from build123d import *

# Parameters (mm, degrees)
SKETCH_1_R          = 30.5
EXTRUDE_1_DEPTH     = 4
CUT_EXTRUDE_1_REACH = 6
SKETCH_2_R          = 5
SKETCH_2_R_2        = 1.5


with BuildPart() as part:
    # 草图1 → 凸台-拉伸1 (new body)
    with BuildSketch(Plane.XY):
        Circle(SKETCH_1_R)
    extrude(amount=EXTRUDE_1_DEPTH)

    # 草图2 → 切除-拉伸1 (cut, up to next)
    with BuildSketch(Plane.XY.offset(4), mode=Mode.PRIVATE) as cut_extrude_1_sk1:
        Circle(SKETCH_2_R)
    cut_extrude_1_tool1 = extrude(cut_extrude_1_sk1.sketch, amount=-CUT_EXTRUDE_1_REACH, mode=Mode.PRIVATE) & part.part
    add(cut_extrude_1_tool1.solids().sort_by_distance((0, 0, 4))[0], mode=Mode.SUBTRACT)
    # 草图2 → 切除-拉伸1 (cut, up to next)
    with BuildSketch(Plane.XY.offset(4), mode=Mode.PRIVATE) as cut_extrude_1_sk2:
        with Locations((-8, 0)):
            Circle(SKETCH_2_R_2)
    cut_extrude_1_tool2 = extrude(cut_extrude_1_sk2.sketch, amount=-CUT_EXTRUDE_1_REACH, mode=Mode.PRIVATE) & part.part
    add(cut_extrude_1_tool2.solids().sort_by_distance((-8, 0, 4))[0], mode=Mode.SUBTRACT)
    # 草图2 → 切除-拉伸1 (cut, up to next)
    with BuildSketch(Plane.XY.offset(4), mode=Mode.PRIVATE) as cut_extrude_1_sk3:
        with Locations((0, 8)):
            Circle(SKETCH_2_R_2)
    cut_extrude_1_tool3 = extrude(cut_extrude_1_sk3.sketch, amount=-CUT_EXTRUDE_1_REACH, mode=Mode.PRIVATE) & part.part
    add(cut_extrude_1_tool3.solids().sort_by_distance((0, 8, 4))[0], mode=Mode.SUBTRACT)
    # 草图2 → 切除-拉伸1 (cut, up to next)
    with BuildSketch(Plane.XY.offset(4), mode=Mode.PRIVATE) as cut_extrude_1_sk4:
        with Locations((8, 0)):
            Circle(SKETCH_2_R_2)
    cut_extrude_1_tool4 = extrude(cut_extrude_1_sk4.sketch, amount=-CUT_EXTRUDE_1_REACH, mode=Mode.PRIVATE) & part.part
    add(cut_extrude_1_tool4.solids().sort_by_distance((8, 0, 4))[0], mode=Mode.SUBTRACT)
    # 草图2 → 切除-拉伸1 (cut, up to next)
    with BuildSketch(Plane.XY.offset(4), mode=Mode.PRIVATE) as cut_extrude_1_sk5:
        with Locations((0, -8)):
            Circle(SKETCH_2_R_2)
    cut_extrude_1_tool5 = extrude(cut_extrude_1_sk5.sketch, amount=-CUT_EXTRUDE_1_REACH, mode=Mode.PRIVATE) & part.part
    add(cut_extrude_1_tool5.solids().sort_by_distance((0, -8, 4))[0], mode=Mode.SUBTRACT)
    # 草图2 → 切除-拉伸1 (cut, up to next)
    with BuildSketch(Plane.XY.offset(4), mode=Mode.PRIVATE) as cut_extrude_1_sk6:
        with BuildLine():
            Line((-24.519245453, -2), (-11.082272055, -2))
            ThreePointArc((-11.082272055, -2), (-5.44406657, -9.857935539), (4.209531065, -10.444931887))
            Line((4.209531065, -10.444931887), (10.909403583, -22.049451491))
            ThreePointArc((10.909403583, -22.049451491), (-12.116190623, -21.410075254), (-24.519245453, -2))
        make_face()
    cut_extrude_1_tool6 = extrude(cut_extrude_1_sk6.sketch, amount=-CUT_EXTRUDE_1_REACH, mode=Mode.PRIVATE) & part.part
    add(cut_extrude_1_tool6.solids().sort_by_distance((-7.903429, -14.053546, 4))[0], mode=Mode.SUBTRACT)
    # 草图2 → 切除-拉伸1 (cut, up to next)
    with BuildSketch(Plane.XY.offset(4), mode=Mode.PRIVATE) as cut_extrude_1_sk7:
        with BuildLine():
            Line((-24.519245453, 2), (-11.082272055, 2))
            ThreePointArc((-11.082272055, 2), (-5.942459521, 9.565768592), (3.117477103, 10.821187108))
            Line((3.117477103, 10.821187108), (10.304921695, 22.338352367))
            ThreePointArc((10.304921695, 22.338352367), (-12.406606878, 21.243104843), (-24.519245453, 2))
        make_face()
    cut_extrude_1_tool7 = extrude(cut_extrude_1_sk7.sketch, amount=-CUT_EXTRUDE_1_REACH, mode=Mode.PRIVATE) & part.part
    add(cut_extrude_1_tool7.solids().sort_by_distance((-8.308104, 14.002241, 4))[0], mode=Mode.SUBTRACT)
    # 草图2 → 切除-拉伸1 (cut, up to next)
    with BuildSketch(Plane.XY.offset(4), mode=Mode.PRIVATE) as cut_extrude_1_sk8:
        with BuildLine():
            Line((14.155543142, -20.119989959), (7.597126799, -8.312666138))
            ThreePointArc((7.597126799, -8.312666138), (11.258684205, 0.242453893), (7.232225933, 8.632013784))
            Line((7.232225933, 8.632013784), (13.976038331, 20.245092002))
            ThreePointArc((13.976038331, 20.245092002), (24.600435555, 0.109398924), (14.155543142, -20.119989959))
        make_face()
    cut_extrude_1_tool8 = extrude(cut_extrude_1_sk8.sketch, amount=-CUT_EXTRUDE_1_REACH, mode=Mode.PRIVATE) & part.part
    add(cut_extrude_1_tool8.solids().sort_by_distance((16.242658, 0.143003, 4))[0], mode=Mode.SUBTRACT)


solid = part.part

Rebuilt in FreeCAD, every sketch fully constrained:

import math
import FreeCAD as App
import Part
import Sketcher
from FreeCAD import Vector
Q = App.Units.Quantity

doc = App.newDocument("Part")
params = doc.addObject("Spreadsheet::Sheet", "Params")
for row, (alias, value) in enumerate([
    ("sketch1_diameter", "61 mm"),
    ("pad1_length", "4 mm"),
    ("sketch2_diameter", "10 mm"),
    ("sketch3_diameter", "3 mm"),
    ("sketch4_diameter", "3 mm"),
    ("sketch5_diameter", "3 mm"),
    ("sketch6_diameter", "3 mm"),
], start=1):
    params.set(f"A{row}", alias)
    params.set(f"B{row}", "=" + value)
    params.setAlias(f"B{row}", alias)

body = doc.addObject("PartDesign::Body", "Body")

# Sketch on XY plane
sketch1 = doc.addObject("Sketcher::SketchObject", "Sketch")
body.addObject(sketch1)
sketch1.AttachmentSupport = (doc.XY_Plane, [""])
sketch1.MapMode = "FlatFace"
sketch1.addGeometry(Part.Circle(Vector(0, 0, 0), Vector(0, 0, 1), 30.5), False)
sketch1.addConstraint([
    Sketcher.Constraint("Coincident", 0, 3, -1, 1),
    Sketcher.Constraint("Diameter", 0, Q("61 mm")),
])
sketch1.setExpression("Constraints[1]", "Params.sketch1_diameter")
pad1 = doc.addObject("PartDesign::Pad", "Pad")
body.addObject(pad1)
pad1.Profile = sketch1
pad1.setExpression("Length", "Params.pad1_length")

# Sketch on XY plane
sketch2 = doc.addObject("Sketcher::SketchObject", "Sketch001")
body.addObject(sketch2)
sketch2.AttachmentSupport = (doc.XY_Plane, [""])
sketch2.MapMode = "FlatFace"
sketch2.AttachmentOffset = App.Placement(Vector(0, 0, 4), App.Rotation())
sketch2.addGeometry(Part.Circle(Vector(0, 0, 0), Vector(0, 0, 1), 5), False)
sketch2.addConstraint([
    Sketcher.Constraint("Coincident", 0, 3, -1, 1),
    Sketcher.Constraint("Diameter", 0, Q("10 mm")),
])
sketch2.setExpression("Constraints[1]", "Params.sketch2_diameter")
pocket1 = doc.addObject("PartDesign::Pocket", "Pocket")
body.addObject(pocket1)
pocket1.Profile = sketch2
pocket1.Type = "UpToFirst"

# Sketch on XY plane
sketch3 = doc.addObject("Sketcher::SketchObject", "Sketch002")
body.addObject(sketch3)
sketch3.AttachmentSupport = (doc.XY_Plane, [""])
sketch3.MapMode = "FlatFace"
sketch3.AttachmentOffset = App.Placement(Vector(0, 0, 4), App.Rotation())
sketch3.addGeometry(Part.Circle(Vector(-8, 0, 0), Vector(0, 0, 1), 1.5), False)
sketch3.addConstraint([
    Sketcher.Constraint("PointOnObject", 0, 3, -1),
    Sketcher.Constraint("Diameter", 0, Q("3 mm")),
    Sketcher.Constraint("DistanceX", 0, 3, -1, 1, Q("8 mm")),
])
sketch3.setExpression("Constraints[1]", "Params.sketch3_diameter")
pocket2 = doc.addObject("PartDesign::Pocket", "Pocket001")
body.addObject(pocket2)
pocket2.Profile = sketch3
pocket2.Type = "UpToFirst"

# Sketch on XY plane
sketch4 = doc.addObject("Sketcher::SketchObject", "Sketch003")
body.addObject(sketch4)
sketch4.AttachmentSupport = (doc.XY_Plane, [""])
sketch4.MapMode = "FlatFace"
sketch4.AttachmentOffset = App.Placement(Vector(0, 0, 4), App.Rotation())
sketch4.addGeometry(Part.Circle(Vector(0, 8, 0), Vector(0, 0, 1), 1.5), False)
sketch4.addConstraint([
    Sketcher.Constraint("PointOnObject", 0, 3, -2),
    Sketcher.Constraint("Diameter", 0, Q("3 mm")),
    Sketcher.Constraint("DistanceY", -1, 1, 0, 3, Q("8 mm")),
])
sketch4.setExpression("Constraints[1]", "Params.sketch4_diameter")
pocket3 = doc.addObject("PartDesign::Pocket", "Pocket002")
body.addObject(pocket3)
pocket3.Profile = sketch4
pocket3.Type = "UpToFirst"

# Sketch on XY plane
sketch5 = doc.addObject("Sketcher::SketchObject", "Sketch004")
body.addObject(sketch5)
sketch5.AttachmentSupport = (doc.XY_Plane, [""])
sketch5.MapMode = "FlatFace"
sketch5.AttachmentOffset = App.Placement(Vector(0, 0, 4), App.Rotation())
sketch5.addGeometry(Part.Circle(Vector(8, 0, 0), Vector(0, 0, 1), 1.5), False)
sketch5.addConstraint([
    Sketcher.Constraint("PointOnObject", 0, 3, -1),
    Sketcher.Constraint("Diameter", 0, Q("3 mm")),
    Sketcher.Constraint("DistanceX", -1, 1, 0, 3, Q("8 mm")),
])
sketch5.setExpression("Constraints[1]", "Params.sketch5_diameter")
pocket4 = doc.addObject("PartDesign::Pocket", "Pocket003")
body.addObject(pocket4)
pocket4.Profile = sketch5
pocket4.Type = "UpToFirst"

# Sketch on XY plane
sketch6 = doc.addObject("Sketcher::SketchObject", "Sketch005")
body.addObject(sketch6)
sketch6.AttachmentSupport = (doc.XY_Plane, [""])
sketch6.MapMode = "FlatFace"
sketch6.AttachmentOffset = App.Placement(Vector(0, 0, 4), App.Rotation())
sketch6.addGeometry(Part.Circle(Vector(0, -8, 0), Vector(0, 0, 1), 1.5), False)
sketch6.addConstraint([
    Sketcher.Constraint("PointOnObject", 0, 3, -2),
    Sketcher.Constraint("Diameter", 0, Q("3 mm")),
    Sketcher.Constraint("DistanceY", 0, 3, -1, 1, Q("8 mm")),
])
sketch6.setExpression("Constraints[1]", "Params.sketch6_diameter")
pocket5 = doc.addObject("PartDesign::Pocket", "Pocket004")
body.addObject(pocket5)
pocket5.Profile = sketch6
pocket5.Type = "UpToFirst"

# Sketch on XY plane
sketch7 = doc.addObject("Sketcher::SketchObject", "Sketch006")
body.addObject(sketch7)
sketch7.AttachmentSupport = (doc.XY_Plane, [""])
sketch7.MapMode = "FlatFace"
sketch7.AttachmentOffset = App.Placement(Vector(0, 0, 4), App.Rotation())
sketch7.addGeometry([
    Part.LineSegment(Vector(-11.082272, -2, 0), Vector(-24.519245, -2, 0)),
    Part.ArcOfCircle(Part.Circle(Vector(0, 0, 0), Vector(0, 0, 1), 24.600679), math.radians(-175.336789), math.radians(-63.675183)),
    Part.LineSegment(Vector(10.909404, -22.049451, 0), Vector(4.209531, -10.444932, 0)),
    Part.ArcOfCircle(Part.Circle(Vector(0, 0, 0), Vector(0, 0, 1), 11.261295), math.radians(-169.770033), math.radians(-68.04951)),
], False)
sketch7.addConstraint([
    Sketcher.Constraint("Coincident", 0, 2, 1, 1),
    Sketcher.Constraint("Coincident", 1, 2, 2, 1),
    Sketcher.Constraint("Coincident", 2, 2, 3, 2),
    Sketcher.Constraint("Coincident", 3, 1, 0, 1),
    Sketcher.Constraint("Horizontal", 0),
    Sketcher.Constraint("Coincident", 1, 3, -1, 1),
    Sketcher.Constraint("Coincident", 3, 3, -1, 1),
    Sketcher.Constraint("Angle", 2, Q("120 deg")),
    Sketcher.Constraint("DistanceY", 0, 2, -1, 1, Q("2 mm")),
    Sketcher.Constraint("Radius", 1, Q("24.600679 mm")),
    Sketcher.Constraint("Radius", 3, Q("11.261295 mm")),
    Sketcher.Constraint("DistanceY", 1, 2, -1, 1, Q("22.049451 mm")),
])
pocket6 = doc.addObject("PartDesign::Pocket", "Pocket005")
body.addObject(pocket6)
pocket6.Profile = sketch7
pocket6.Type = "UpToFirst"

# Sketch on XY plane
sketch8 = doc.addObject("Sketcher::SketchObject", "Sketch007")
body.addObject(sketch8)
sketch8.AttachmentSupport = (doc.XY_Plane, [""])
sketch8.MapMode = "FlatFace"
sketch8.AttachmentOffset = App.Placement(Vector(0, 0, 4), App.Rotation())
sketch8.addGeometry([
    Part.LineSegment(Vector(-24.519245, 2, 0), Vector(-11.082272, 2, 0)),
    Part.ArcOfCircle(Part.Circle(Vector(0, 0, 0), Vector(0, 0, 1), 11.261295), math.radians(73.928832), math.radians(169.770033)),
    Part.LineSegment(Vector(3.117477, 10.821187, 0), Vector(10.304922, 22.338352, 0)),
    Part.ArcOfCircle(Part.Circle(Vector(0, 0, 0), Vector(0, 0, 1), 24.600679), math.radians(65.235617), math.radians(175.336789)),
], False)
sketch8.addConstraint([
    Sketcher.Constraint("Coincident", 0, 2, 1, 2),
    Sketcher.Constraint("Coincident", 1, 1, 2, 1),
    Sketcher.Constraint("Coincident", 2, 2, 3, 1),
    Sketcher.Constraint("Coincident", 3, 2, 0, 1),
    Sketcher.Constraint("Horizontal", 0),
    Sketcher.Constraint("Coincident", 1, 3, -1, 1),
    Sketcher.Constraint("Coincident", 3, 3, -1, 1),
    Sketcher.Constraint("DistanceY", -1, 1, 0, 2, Q("2 mm")),
    Sketcher.Constraint("Radius", 3, Q("24.600679 mm")),
    Sketcher.Constraint("Radius", 1, Q("11.261295 mm")),
    Sketcher.Constraint("DistanceX", -1, 1, 2, 2, Q("10.304922 mm")),
    Sketcher.Constraint("DistanceX", 0, 2, 1, 1, Q("14.199749 mm")),
])
pocket7 = doc.addObject("PartDesign::Pocket", "Pocket006")
body.addObject(pocket7)
pocket7.Profile = sketch8
pocket7.Type = "UpToFirst"

# Sketch on XY plane
sketch9 = doc.addObject("Sketcher::SketchObject", "Sketch008")
body.addObject(sketch9)
sketch9.AttachmentSupport = (doc.XY_Plane, [""])
sketch9.MapMode = "FlatFace"
sketch9.AttachmentOffset = App.Placement(Vector(0, 0, 4), App.Rotation())
sketch9.addGeometry([
    Part.LineSegment(Vector(7.597127, -8.312666, 0), Vector(14.155543, -20.11999, 0)),
    Part.ArcOfCircle(Part.Circle(Vector(0, 0, 0), Vector(0, 0, 1), 24.600679), math.radians(-54.871461), math.radians(55.38105)),
    Part.LineSegment(Vector(13.976038, 20.245092, 0), Vector(7.232226, 8.632014, 0)),
    Part.ArcOfCircle(Part.Circle(Vector(0, 0, 0), Vector(0, 0, 1), 11.261295), math.radians(-47.575129), math.radians(50.042458)),
], False)
sketch9.addConstraint([
    Sketcher.Constraint("Coincident", 0, 2, 1, 1),
    Sketcher.Constraint("Coincident", 1, 2, 2, 1),
    Sketcher.Constraint("Coincident", 2, 2, 3, 2),
    Sketcher.Constraint("Coincident", 3, 1, 0, 1),
    Sketcher.Constraint("Coincident", 1, 3, -1, 1),
    Sketcher.Constraint("Coincident", 3, 3, -1, 1),
    Sketcher.Constraint("Radius", 1, Q("24.600679 mm")),
    Sketcher.Constraint("Radius", 3, Q("11.261295 mm")),
    Sketcher.Constraint("DistanceX", 2, 2, 3, 1, Q("0.364901 mm")),
    Sketcher.Constraint("Distance", 2, Q("13.429169 mm")),
    Sketcher.Constraint("DistanceY", 0, 2, -1, 1, Q("20.11999 mm")),
    Sketcher.Constraint("DistanceX", -1, 1, 1, 2, Q("13.976038 mm")),
])
pocket8 = doc.addObject("PartDesign::Pocket", "Pocket007")
body.addObject(pocket8)
pocket8.Profile = sketch9
pocket8.Type = "UpToFirst"

doc.recompute()
